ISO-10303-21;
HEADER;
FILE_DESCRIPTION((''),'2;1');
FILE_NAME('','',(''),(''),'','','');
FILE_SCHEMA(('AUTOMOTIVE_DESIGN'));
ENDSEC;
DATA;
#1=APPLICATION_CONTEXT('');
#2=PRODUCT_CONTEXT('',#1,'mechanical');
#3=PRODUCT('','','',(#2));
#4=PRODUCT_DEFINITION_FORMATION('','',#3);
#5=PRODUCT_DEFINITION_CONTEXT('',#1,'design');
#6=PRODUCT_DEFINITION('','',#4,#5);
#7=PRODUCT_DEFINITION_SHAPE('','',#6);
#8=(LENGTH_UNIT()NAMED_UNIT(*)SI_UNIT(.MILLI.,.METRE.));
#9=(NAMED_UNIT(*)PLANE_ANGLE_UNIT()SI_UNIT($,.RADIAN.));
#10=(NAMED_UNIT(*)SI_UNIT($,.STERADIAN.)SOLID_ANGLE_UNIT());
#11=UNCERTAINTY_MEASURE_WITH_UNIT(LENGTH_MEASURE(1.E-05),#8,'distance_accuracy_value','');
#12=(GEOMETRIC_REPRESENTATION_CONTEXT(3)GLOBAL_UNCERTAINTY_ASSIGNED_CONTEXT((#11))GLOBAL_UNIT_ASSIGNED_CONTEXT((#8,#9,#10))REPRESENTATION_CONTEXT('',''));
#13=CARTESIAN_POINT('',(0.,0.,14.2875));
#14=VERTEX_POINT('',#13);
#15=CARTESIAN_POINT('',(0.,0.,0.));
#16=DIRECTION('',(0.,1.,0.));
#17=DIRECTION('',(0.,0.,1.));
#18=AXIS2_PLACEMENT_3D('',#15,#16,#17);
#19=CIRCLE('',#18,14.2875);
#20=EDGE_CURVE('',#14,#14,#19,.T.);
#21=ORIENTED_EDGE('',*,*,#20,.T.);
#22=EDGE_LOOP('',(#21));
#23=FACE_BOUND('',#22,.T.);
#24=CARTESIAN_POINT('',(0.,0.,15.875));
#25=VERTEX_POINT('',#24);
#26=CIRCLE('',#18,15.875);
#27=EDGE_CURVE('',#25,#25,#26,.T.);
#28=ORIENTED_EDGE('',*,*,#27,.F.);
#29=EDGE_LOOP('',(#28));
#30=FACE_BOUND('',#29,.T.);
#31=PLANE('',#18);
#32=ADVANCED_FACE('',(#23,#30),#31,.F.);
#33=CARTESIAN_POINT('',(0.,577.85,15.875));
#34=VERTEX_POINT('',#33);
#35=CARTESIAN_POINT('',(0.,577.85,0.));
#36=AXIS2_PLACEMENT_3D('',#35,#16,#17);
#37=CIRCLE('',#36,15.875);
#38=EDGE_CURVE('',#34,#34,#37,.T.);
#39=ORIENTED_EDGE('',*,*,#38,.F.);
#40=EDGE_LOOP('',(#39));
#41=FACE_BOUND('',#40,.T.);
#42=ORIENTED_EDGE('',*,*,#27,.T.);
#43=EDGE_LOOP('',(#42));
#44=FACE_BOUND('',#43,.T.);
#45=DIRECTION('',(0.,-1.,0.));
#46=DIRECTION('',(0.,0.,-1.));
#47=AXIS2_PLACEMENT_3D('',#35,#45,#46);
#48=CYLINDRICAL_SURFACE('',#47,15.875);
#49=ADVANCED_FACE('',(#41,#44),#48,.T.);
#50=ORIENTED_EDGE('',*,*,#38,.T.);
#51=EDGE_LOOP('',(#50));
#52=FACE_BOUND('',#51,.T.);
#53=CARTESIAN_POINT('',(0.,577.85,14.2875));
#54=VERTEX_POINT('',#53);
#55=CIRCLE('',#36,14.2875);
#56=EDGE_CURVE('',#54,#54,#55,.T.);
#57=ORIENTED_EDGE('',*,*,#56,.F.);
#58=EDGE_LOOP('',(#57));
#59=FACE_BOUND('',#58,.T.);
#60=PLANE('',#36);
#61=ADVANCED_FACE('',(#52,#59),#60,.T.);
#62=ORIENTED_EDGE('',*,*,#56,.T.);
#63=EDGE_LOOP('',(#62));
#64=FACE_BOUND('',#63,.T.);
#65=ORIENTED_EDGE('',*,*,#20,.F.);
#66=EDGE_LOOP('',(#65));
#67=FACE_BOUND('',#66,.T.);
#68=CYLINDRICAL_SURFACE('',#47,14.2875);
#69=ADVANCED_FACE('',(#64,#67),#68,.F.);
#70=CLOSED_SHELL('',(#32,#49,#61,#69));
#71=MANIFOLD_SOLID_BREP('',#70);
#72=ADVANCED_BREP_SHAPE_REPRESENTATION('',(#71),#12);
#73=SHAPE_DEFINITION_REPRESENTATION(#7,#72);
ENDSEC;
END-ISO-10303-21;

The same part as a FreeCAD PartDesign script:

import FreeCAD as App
import Part
import Sketcher

V = App.Vector
Q = App.Units.Quantity

doc = App.newDocument("Part")
body = doc.addObject("PartDesign::Body", "Body")

sketch1 = body.newObject("Sketcher::SketchObject", "Sketch")
sketch1.AttachmentSupport = (doc.getObject("XZ_Plane"), [""])
sketch1.MapMode = "FlatFace"
sketch1.addGeometry([
    Part.Circle(V(0, 0, 0), V(0, 0, 1), 16),
    Part.Circle(V(0, 0, 0), V(0, 0, 1), 14),
], False)
sketch1.addConstraint([
    Sketcher.Constraint("Coincident", 0, 3, -1, 1),
    Sketcher.Constraint("Coincident", 1, 3, -1, 1),
    Sketcher.Constraint("Diameter", 0, Q("1.25 in")),
    Sketcher.Constraint("Diameter", 1, Q("1.125 in")),
])
pad1 = body.newObject("PartDesign::Pad", "Pad")
pad1.Profile = sketch1
pad1.Length = Q("22.75 in")
pad1.Reversed = True

doc.recompute()
